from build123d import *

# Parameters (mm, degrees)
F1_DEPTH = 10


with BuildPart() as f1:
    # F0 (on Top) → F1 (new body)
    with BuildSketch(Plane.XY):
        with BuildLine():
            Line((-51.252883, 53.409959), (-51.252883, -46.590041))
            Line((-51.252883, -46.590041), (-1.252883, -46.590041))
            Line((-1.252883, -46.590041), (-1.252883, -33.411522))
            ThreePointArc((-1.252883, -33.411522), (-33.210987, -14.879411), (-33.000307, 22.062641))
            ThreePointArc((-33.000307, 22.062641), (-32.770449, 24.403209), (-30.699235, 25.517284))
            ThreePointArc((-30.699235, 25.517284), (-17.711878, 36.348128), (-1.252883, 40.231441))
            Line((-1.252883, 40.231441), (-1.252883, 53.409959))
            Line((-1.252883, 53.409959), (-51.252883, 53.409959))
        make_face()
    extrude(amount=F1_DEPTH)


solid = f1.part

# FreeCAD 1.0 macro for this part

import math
import FreeCAD as App
import Part
import Sketcher

V = App.Vector

doc = App.newDocument("Part")
body = doc.addObject("PartDesign::Body", "Body")

# Sketch on XY plane
sketch1 = body.newObject("Sketcher::SketchObject", "Sketch")
sketch1.AttachmentSupport = (doc.getObject("XY_Plane"), [""])
sketch1.MapMode = "FlatFace"
sketch1.addGeometry([
    Part.LineSegment(V(-51.3, 53.4, 0), V(-51.3, -46.6, 0)),  # 0
    Part.LineSegment(V(-51.3, -46.6, 0), V(-1.3, -46.6, 0)),  # 1
    Part.LineSegment(V(-1.3, -46.6, 0), V(-1.3, -33.4, 0)),  # 2
    Part.ArcOfCircle(Part.Circle(V(-1.3, 3.4, 0), V(0, 0, 1), 36.8), math.radians(150), math.radians(270)),  # 3
    Part.ArcOfCircle(Part.Circle(V(-30.7, 23, 0), V(0, 0, 1), 2.5), math.radians(90), math.radians(202)),  # 4
    Part.ArcOfCircle(Part.Circle(V(-1.3, 3.4, 0), V(0, 0, 1), 36.8), math.radians(90), math.radians(143)),  # 5
    Part.LineSegment(V(-1.3, 40.2, 0), V(-1.3, 53.4, 0)),  # 6
    Part.LineSegment(V(-1.3, 53.4, 0), V(-51.3, 53.4, 0)),  # 7
], False)
sketch1.addConstraint([
    Sketcher.Constraint("Coincident", 0, 2, 1, 1),
    Sketcher.Constraint("Coincident", 1, 2, 2, 1),
    Sketcher.Constraint("Coincident", 2, 2, 3, 2),
    Sketcher.Constraint("Coincident", 3, 1, 4, 2),
    Sketcher.Constraint("Coincident", 4, 1, 5, 2),
    Sketcher.Constraint("Coincident", 5, 1, 6, 1),
    Sketcher.Constraint("Coincident", 6, 2, 7, 1),
    Sketcher.Constraint("Coincident", 7, 2, 0, 1),
    Sketcher.Constraint("Vertical", 0),
    Sketcher.Constraint("Horizontal", 1),
    Sketcher.Constraint("Vertical", 2),
    Sketcher.Constraint("Vertical", 6),
    Sketcher.Constraint("Horizontal", 7),
    Sketcher.Constraint("Coincident", 5, 3, 3, 3),
    Sketcher.Constraint("Equal", 3, 5),
    Sketcher.Constraint("Vertical", 5, 3, 1, 2),
    Sketcher.Constraint("Vertical", 2, 2, 5, 1),
    Sketcher.Constraint("Equal", 2, 6),
    Sketcher.Constraint("Radius", 4, 2.5),
    Sketcher.Constraint("DistanceX", 1, 1, 1, 2, 50.0),
    Sketcher.Constraint("DistanceY", 0, 2, 0, 1, 100.0),
    Sketcher.Constraint("Radius", 3, 36.821481),
    Sketcher.Constraint("DistanceY", 3, 1, 5, 1, 18.1688),
    Sketcher.Constraint("DistanceY", -1, 1, 3, 3, 3.409959),
    Sketcher.Constraint("DistanceX", 4, 3, -1, 1, 30.689761),
    Sketcher.Constraint("DistanceX", 5, 3, -1, 1, 1.252882),
])
pad1 = body.newObject("PartDesign::Pad", "Pad")
pad1.Profile = sketch1
pad1.Length = 10

doc.recompute()
